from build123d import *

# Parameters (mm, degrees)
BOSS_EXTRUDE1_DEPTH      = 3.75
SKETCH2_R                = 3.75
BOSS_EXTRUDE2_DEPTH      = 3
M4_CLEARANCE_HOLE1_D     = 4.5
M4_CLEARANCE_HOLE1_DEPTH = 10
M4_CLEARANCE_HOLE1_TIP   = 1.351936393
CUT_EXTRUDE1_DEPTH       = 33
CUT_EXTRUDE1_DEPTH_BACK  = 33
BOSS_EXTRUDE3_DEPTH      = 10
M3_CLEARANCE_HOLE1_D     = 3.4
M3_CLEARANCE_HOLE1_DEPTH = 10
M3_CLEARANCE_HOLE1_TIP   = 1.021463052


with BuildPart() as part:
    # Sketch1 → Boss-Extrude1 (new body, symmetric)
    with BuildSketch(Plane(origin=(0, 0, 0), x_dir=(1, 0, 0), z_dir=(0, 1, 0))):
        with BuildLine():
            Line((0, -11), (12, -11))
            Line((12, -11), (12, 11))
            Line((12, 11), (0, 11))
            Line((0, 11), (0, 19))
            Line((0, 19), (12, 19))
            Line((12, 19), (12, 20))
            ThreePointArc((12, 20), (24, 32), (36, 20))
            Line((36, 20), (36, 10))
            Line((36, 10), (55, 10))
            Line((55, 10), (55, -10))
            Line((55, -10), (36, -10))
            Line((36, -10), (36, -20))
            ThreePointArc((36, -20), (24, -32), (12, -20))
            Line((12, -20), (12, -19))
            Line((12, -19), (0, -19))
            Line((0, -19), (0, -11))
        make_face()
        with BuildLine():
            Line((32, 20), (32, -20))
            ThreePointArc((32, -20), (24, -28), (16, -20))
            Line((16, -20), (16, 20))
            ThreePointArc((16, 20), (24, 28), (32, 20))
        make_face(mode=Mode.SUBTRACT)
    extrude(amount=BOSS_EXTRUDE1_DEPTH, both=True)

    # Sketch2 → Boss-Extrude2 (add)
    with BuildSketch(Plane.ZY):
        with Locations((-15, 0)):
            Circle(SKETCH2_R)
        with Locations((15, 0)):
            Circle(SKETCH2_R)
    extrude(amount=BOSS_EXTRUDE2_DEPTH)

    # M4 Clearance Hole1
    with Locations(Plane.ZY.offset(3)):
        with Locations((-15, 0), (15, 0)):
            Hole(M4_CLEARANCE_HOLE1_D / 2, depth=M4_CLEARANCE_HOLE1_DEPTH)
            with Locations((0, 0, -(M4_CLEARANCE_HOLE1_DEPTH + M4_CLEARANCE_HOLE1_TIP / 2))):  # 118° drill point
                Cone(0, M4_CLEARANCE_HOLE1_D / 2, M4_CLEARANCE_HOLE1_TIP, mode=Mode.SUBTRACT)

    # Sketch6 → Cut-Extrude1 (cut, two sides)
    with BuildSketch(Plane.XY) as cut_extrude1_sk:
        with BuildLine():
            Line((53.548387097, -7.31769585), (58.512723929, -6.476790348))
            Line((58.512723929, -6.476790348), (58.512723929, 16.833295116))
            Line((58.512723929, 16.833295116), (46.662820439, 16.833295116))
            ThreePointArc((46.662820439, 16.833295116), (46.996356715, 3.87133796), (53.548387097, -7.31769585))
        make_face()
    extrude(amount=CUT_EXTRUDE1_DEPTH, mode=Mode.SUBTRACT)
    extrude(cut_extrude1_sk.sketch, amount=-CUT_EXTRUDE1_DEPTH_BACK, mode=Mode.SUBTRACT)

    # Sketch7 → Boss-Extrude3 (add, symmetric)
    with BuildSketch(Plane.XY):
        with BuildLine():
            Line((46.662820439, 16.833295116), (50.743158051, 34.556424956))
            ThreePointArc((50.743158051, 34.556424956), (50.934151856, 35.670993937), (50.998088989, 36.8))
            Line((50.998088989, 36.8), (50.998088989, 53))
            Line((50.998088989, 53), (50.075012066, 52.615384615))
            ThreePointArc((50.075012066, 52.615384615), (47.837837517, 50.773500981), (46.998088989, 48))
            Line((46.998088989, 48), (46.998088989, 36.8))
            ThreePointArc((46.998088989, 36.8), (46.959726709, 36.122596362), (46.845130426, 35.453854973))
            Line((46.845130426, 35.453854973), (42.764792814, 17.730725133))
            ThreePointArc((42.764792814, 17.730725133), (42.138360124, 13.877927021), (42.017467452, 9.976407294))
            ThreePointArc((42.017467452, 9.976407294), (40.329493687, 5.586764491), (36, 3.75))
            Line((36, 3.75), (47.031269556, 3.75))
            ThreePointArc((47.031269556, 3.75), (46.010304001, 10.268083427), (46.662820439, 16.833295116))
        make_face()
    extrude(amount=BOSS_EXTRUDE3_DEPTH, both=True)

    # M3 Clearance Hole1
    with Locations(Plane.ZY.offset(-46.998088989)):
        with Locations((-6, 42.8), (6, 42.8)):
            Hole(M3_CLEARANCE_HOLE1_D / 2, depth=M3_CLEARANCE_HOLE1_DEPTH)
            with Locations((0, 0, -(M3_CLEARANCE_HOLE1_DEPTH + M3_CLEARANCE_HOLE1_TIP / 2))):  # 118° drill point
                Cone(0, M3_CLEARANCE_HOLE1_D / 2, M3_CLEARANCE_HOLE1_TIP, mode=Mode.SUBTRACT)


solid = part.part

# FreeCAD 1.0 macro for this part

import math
import FreeCAD as App
import Part
import Sketcher

V = App.Vector

doc = App.newDocument("Part")
params = doc.addObject("Spreadsheet::Sheet", "Params")
for row, (alias, value) in enumerate([
    ("sketch1_radius", "12 mm"),
    ("sketch1_radius2", "8 mm"),
    ("sketch1_width", "12 mm"),
    ("sketch1_width2", "19 mm"),
    ("sketch1_height", "8 mm"),
    ("pad1_length", "7.5 mm"),
    ("sketch2_diameter", "7.5 mm"),
    ("pad2_length", "3 mm"),
    ("sketch3_diameter", "4.5 mm"),
    ("hole_diameter", "4.5 mm"),
    ("hole_depth", "10 mm"),
    ("sketch4_radius", "26 mm"),
    ("sketch5_radius", "10 mm"),
    ("sketch5_radius2", "5 mm"),
    ("sketch5_radius3", "6 mm"),
    ("sketch5_radius4", "30 mm"),
    ("sketch5_length", "1 mm"),
    ("pad3_length", "20 mm"),
    ("sketch6_diameter", "3.4 mm"),
    ("hole2_diameter", "3.4 mm"),
    ("hole2_depth", "10 mm"),
], start=1):
    params.set(f"A{row}", alias)
    params.set(f"B{row}", "=" + value)
    params.setAlias(f"B{row}", alias)

body = doc.addObject("PartDesign::Body", "Body")

# Sketch on XZ plane
sketch1 = body.newObject("Sketcher::SketchObject", "Sketch")
sketch1.AttachmentSupport = (doc.getObject("XZ_Plane"), [""])
sketch1.MapMode = "FlatFace"
sketch1.addGeometry(Part.LineSegment(V(12, 11, 0), V(0, 11, 0)), False)
sketch1.addGeometry(Part.LineSegment(V(0, 11, 0), V(0, 19, 0)), False)
sketch1.addGeometry(Part.LineSegment(V(0, 19, 0), V(12, 19, 0)), False)
sketch1.addGeometry(Part.LineSegment(V(12, 19, 0), V(12, 20, 0)), False)
sketch1.addGeometry(Part.ArcOfCircle(Part.Circle(V(24, 20, 0), V(0, 0, 1), 12), math.radians(0), math.radians(180)), False)
sketch1.addGeometry(Part.LineSegment(V(36, 20, 0), V(36, 10, 0)), False)
sketch1.addGeometry(Part.LineSegment(V(36, 10, 0), V(55, 10, 0)), False)
sketch1.addGeometry(Part.LineSegment(V(55, 10, 0), V(55, -10, 0)), False)
sketch1.addGeometry(Part.LineSegment(V(55, -10, 0), V(36, -10, 0)), False)
sketch1.addGeometry(Part.LineSegment(V(36, -10, 0), V(36, -20, 0)), False)
sketch1.addGeometry(Part.ArcOfCircle(Part.Circle(V(24, -20, 0), V(0, 0, 1), 12), math.radians(180), math.radians(360)), False)
sketch1.addGeometry(Part.LineSegment(V(12, -20, 0), V(12, -19, 0)), False)
sketch1.addGeometry(Part.LineSegment(V(12, -19, 0), V(0, -19, 0)), False)
sketch1.addGeometry(Part.LineSegment(V(0, -19, 0), V(0, -11, 0)), False)
sketch1.addGeometry(Part.LineSegment(V(0, -11, 0), V(12, -11, 0)), False)
sketch1.addGeometry(Part.LineSegment(V(12, -11, 0), V(12, 11, 0)), False)
sketch1.addGeometry(Part.LineSegment(V(32, -20, 0), V(32, 20, 0)), False)
sketch1.addGeometry(Part.ArcOfCircle(Part.Circle(V(24, 20, 0), V(0, 0, 1), 8), math.radians(0), math.radians(180)), False)
sketch1.addGeometry(Part.LineSegment(V(16, 20, 0), V(16, -20, 0)), False)
sketch1.addGeometry(Part.ArcOfCircle(Part.Circle(V(24, -20, 0), V(0, 0, 1), 8), math.radians(180), math.radians(360)), False)
sketch1.addConstraint(Sketcher.Constraint("Coincident", 0, 2, 1, 1))
sketch1.addConstraint(Sketcher.Constraint("Coincident", 1, 2, 2, 1))
sketch1.addConstraint(Sketcher.Constraint("Coincident", 2, 2, 3, 1))
sketch1.addConstraint(Sketcher.Constraint("Tangent", 3, 2, 4, 2))
sketch1.addConstraint(Sketcher.Constraint("Tangent", 4, 1, 5, 1))
sketch1.addConstraint(Sketcher.Constraint("Coincident", 5, 2, 6, 1))
sketch1.addConstraint(Sketcher.Constraint("Coincident", 6, 2, 7, 1))
sketch1.addConstraint(Sketcher.Constraint("Coincident", 7, 2, 8, 1))
sketch1.addConstraint(Sketcher.Constraint("Coincident", 8, 2, 9, 1))
sketch1.addConstraint(Sketcher.Constraint("Tangent", 9, 2, 10, 2))
sketch1.addConstraint(Sketcher.Constraint("Tangent", 10, 1, 11, 1))
sketch1.addConstraint(Sketcher.Constraint("Coincident", 11, 2, 12, 1))
sketch1.addConstraint(Sketcher.Constraint("Coincident", 12, 2, 13, 1))
sketch1.addConstraint(Sketcher.Constraint("Coincident", 13, 2, 14, 1))
sketch1.addConstraint(Sketcher.Constraint("Coincident", 14, 2, 15, 1))
sketch1.addConstraint(Sketcher.Constraint("Coincident", 15, 2, 0, 1))
sketch1.addConstraint(Sketcher.Constraint("Tangent", 16, 2, 17, 1))
sketch1.addConstraint(Sketcher.Constraint("Tangent", 17, 2, 18, 1))
sketch1.addConstraint(Sketcher.Constraint("Tangent", 18, 2, 19, 1))
sketch1.addConstraint(Sketcher.Constraint("Tangent", 19, 2, 16, 1))
sketch1.addConstraint(Sketcher.Constraint("Horizontal", 0))
sketch1.addConstraint(Sketcher.Constraint("Vertical", 1))
sketch1.addConstraint(Sketcher.Constraint("Horizontal", 2))
sketch1.addConstraint(Sketcher.Constraint("Vertical", 3))
sketch1.addConstraint(Sketcher.Constraint("Vertical", 5))
sketch1.addConstraint(Sketcher.Constraint("Horizontal", 6))
sketch1.addConstraint(Sketcher.Constraint("Vertical", 7))
sketch1.addConstraint(Sketcher.Constraint("Horizontal", 8))
sketch1.addConstraint(Sketcher.Constraint("Vertical", 9))
sketch1.addConstraint(Sketcher.Constraint("Vertical", 11))
sketch1.addConstraint(Sketcher.Constraint("Horizontal", 12))
sketch1.addConstraint(Sketcher.Constraint("Vertical", 13))
sketch1.addConstraint(Sketcher.Constraint("Horizontal", 14))
sketch1.addConstraint(Sketcher.Constraint("Vertical", 15))
sketch1.addConstraint(Sketcher.Constraint("Vertical", 16))
sketch1.addConstraint(Sketcher.Constraint("Vertical", 18))
sketch1.addConstraint(Sketcher.Constraint("Coincident", 17, 3, 4, 3))
sketch1.addConstraint(Sketcher.Constraint("Coincident", 19, 3, 10, 3))
sketch1.addConstraint(Sketcher.Constraint("Equal", 4, 10))
sketch1.addConstraint(Sketcher.Constraint("Symmetric", 1, 2, 12, 2, -1, 1))
sketch1.addConstraint(Sketcher.Constraint("Symmetric", 0, 2, 13, 2, -1))
sketch1.addConstraint(Sketcher.Constraint("Vertical", 11, 2, 14, 2))
sketch1.addConstraint(Sketcher.Constraint("Equal", 5, 9))
sketch1.addConstraint(Sketcher.Constraint("Equal", 3, 11))
sketch1.addConstraint(Sketcher.Constraint("Radius", 4, 12.0))
sketch1.addConstraint(Sketcher.Constraint("Radius", 17, 8.0))
sketch1.addConstraint(Sketcher.Constraint("DistanceX", 0, 2, 0, 1, 12.0))
sketch1.addConstraint(Sketcher.Constraint("DistanceX", 6, 1, 6, 2, 19.0))
sketch1.addConstraint(Sketcher.Constraint("DistanceY", 1, 1, 1, 2, 8.0))
sketch1.addConstraint(Sketcher.Constraint("DistanceY", 3, 1, 3, 2, 1.0))
sketch1.addConstraint(Sketcher.Constraint("DistanceY", 5, 2, 5, 1, 10.0))
sketch1.addConstraint(Sketcher.Constraint("DistanceY", 7, 2, 7, 1, 20.0))
sketch1.setExpression("Constraints[44]", "Params.sketch1_radius")
sketch1.setExpression("Constraints[45]", "Params.sketch1_radius2")
sketch1.setExpression("Constraints[46]", "Params.sketch1_width")
sketch1.setExpression("Constraints[47]", "Params.sketch1_width2")
sketch1.setExpression("Constraints[48]", "Params.sketch1_height")
pad1 = body.newObject("PartDesign::Pad", "Pad")
pad1.Profile = sketch1
pad1.setExpression("Length", "Params.pad1_length")
pad1.Midplane = True

# Sketch on YZ plane
sketch2 = body.newObject("Sketcher::SketchObject", "Sketch001")
sketch2.AttachmentSupport = (doc.getObject("YZ_Plane"), [""])
sketch2.MapMode = "FlatFace"
sketch2.addGeometry(Part.Circle(V(0, -15, 0), V(0, 0, 1), 3.75), False)
sketch2.addGeometry(Part.Circle(V(0, 15, 0), V(0, 0, 1), 3.75), False)
sketch2.addConstraint(Sketcher.Constraint("Equal", 0, 1))
sketch2.addConstraint(Sketcher.Constraint("Symmetric", 0, 3, 1, 3, -1, 1))
sketch2.addConstraint(Sketcher.Constraint("PointOnObject", 0, 3, -2))
sketch2.addConstraint(Sketcher.Constraint("Diameter", 0, 7.5))
sketch2.addConstraint(Sketcher.Constraint("DistanceY", 0, 3, -1, 1, 15.0))
sketch2.setExpression("Constraints[3]", "Params.sketch2_diameter")
pad2 = body.newObject("PartDesign::Pad", "Pad001")
pad2.Profile = sketch2
pad2.setExpression("Length", "Params.pad2_length")
pad2.Reversed = True

# Sketch on YZ plane
sketch3 = body.newObject("Sketcher::SketchObject", "Sketch002")
sketch3.AttachmentSupport = (doc.getObject("YZ_Plane"), [""])
sketch3.MapMode = "FlatFace"
sketch3.AttachmentOffset = App.Placement(V(0, 0, -3), App.Rotation())
sketch3.addGeometry(Part.Circle(V(0, -15, 0), V(0, 0, 1), 2.25), False)
sketch3.addGeometry(Part.Circle(V(0, 15, 0), V(0, 0, 1), 2.25), False)
sketch3.addConstraint(Sketcher.Constraint("Equal", 0, 1))
sketch3.addConstraint(Sketcher.Constraint("Symmetric", 0, 3, 1, 3, -1, 1))
sketch3.addConstraint(Sketcher.Constraint("PointOnObject", 0, 3, -2))
sketch3.addConstraint(Sketcher.Constraint("Diameter", 0, 4.5))
sketch3.addConstraint(Sketcher.Constraint("DistanceY", 0, 3, -1, 1, 15.0))
sketch3.setExpression("Constraints[3]", "Params.sketch3_diameter")
doc.recompute()
hole = body.newObject("PartDesign::Hole", "Hole")
hole.Profile = sketch3
hole.ThreadType = "None"
hole.setExpression("Diameter", "Params.hole_diameter")
hole.DepthType = "Dimension"
hole.setExpression("Depth", "Params.hole_depth")
hole.DrillPoint = "Angled"
hole.DrillPointAngle = 118
hole.Reversed = True

# Sketch on XY plane
sketch4 = body.newObject("Sketcher::SketchObject", "Sketch003")
sketch4.AttachmentSupport = (doc.getObject("XY_Plane"), [""])
sketch4.MapMode = "FlatFace"
sketch4.addGeometry(Part.LineSegment(V(53.548387, -7.317696, 0), V(58.512724, -6.47679, 0)), False)
sketch4.addGeometry(Part.LineSegment(V(58.512724, -6.47679, 0), V(58.512724, 16.833295, 0)), False)
sketch4.addGeometry(Part.LineSegment(V(58.512724, 16.833295, 0), V(46.66282, 16.833295, 0)), False)
sketch4.addGeometry(Part.ArcOfCircle(Part.Circle(V(72, 11, 0), V(0, 0, 1), 26), math.radians(167.0349), math.radians(224.791325)), False)
sketch4.addConstraint(Sketcher.Constraint("Coincident", 0, 2, 1, 1))
sketch4.addConstraint(Sketcher.Constraint("Coincident", 1, 2, 2, 1))
sketch4.addConstraint(Sketcher.Constraint("Coincident", 2, 2, 3, 1))
sketch4.addConstraint(Sketcher.Constraint("Coincident", 3, 2, 0, 1))
sketch4.addConstraint(Sketcher.Constraint("Vertical", 1))
sketch4.addConstraint(Sketcher.Constraint("Horizontal", 2))
sketch4.addConstraint(Sketcher.Constraint("Radius", 3, 26.0))
sketch4.addConstraint(Sketcher.Constraint("DistanceX", -1, 1, 3, 3, 72.0))
sketch4.addConstraint(Sketcher.Constraint("DistanceY", -1, 1, 3, 3, 11.0))
sketch4.addConstraint(Sketcher.Constraint("DistanceX", 2, 2, 2, 1, 11.849903))
sketch4.addConstraint(Sketcher.Constraint("DistanceY", 1, 1, 1, 2, 23.310085))
sketch4.addConstraint(Sketcher.Constraint("DistanceY", 0, 2, -1, 1, 6.47679))
sketch4.addConstraint(Sketcher.Constraint("DistanceY", 3, 2, 1, 2, 24.150991))
sketch4.setExpression("Constraints[6]", "Params.sketch4_radius")
pocket1 = body.newObject("PartDesign::Pocket", "Pocket")
pocket1.Profile = sketch4
pocket1.Type = "ThroughAll"
pocket1.Midplane = True

# Sketch on XY plane
sketch5 = body.newObject("Sketcher::SketchObject", "Sketch004")
sketch5.AttachmentSupport = (doc.getObject("XY_Plane"), [""])
sketch5.MapMode = "FlatFace"
sketch5.addGeometry(Part.LineSegment(V(46.66282, 16.833295, 0), V(50.743158, 34.556425, 0)), False)
sketch5.addGeometry(Part.ArcOfCircle(Part.Circle(V(40.998089, 36.8, 0), V(0, 0, 1), 10), math.radians(-12.9651), math.radians(0)), False)
sketch5.addGeometry(Part.LineSegment(V(50.998089, 36.8, 0), V(50.998089, 53, 0)), False)
sketch5.addGeometry(Part.LineSegment(V(50.998089, 53, 0), V(50.075012, 52.615385, 0)), False)
sketch5.addGeometry(Part.ArcOfCircle(Part.Circle(V(51.998089, 48, 0), V(0, 0, 1), 5), math.radians(112.619865), math.radians(180)), False)
sketch5.addGeometry(Part.LineSegment(V(46.998089, 48, 0), V(46.998089, 36.8, 0)), False)
sketch5.addGeometry(Part.ArcOfCircle(Part.Circle(V(40.998089, 36.8, 0), V(0, 0, 1), 6), math.radians(-12.9651), math.radians(0)), False)
sketch5.addGeometry(Part.LineSegment(V(46.84513, 35.453855, 0), V(42.764793, 17.730725, 0)), False)
sketch5.addGeometry(Part.ArcOfCircle(Part.Circle(V(72, 11, 0), V(0, 0, 1), 30), math.radians(167.0349), math.radians(181.955298)), False)
sketch5.addGeometry(Part.ArcOfCircle(Part.Circle(V(36, 9.770973, 0), V(0, 0, 1), 6.020973), math.radians(-90), math.radians(1.955298)), False)
sketch5.addGeometry(Part.LineSegment(V(36, 3.75, 0), V(47.03127, 3.75, 0)), False)
sketch5.addGeometry(Part.ArcOfCircle(Part.Circle(V(72, 11, 0), V(0, 0, 1), 26), math.radians(167.0349), math.radians(196.191352)), False)
sketch5.addConstraint(Sketcher.Constraint("Tangent", 0, 2, 1, 1))
sketch5.addConstraint(Sketcher.Constraint("Tangent", 1, 2, 2, 1))
sketch5.addConstraint(Sketcher.Constraint("Coincident", 2, 2, 3, 1))
sketch5.addConstraint(Sketcher.Constraint("Tangent", 3, 2, 4, 1))
sketch5.addConstraint(Sketcher.Constraint("Tangent", 4, 2, 5, 1))
sketch5.addConstraint(Sketcher.Constraint("Tangent", 5, 2, 6, 2))
sketch5.addConstraint(Sketcher.Constraint("Tangent", 6, 1, 7, 1))
sketch5.addConstraint(Sketcher.Constraint("Tangent", 7, 2, 8, 1))
sketch5.addConstraint(Sketcher.Constraint("Tangent", 8, 2, 9, 2))
sketch5.addConstraint(Sketcher.Constraint("Tangent", 9, 1, 10, 1))
sketch5.addConstraint(Sketcher.Constraint("Coincident", 10, 2, 11, 2))
sketch5.addConstraint(Sketcher.Constraint("Tangent", 11, 1, 0, 1))
sketch5.addConstraint(Sketcher.Constraint("Vertical", 2))
sketch5.addConstraint(Sketcher.Constraint("Vertical", 5))
sketch5.addConstraint(Sketcher.Constraint("Horizontal", 10))
sketch5.addConstraint(Sketcher.Constraint("Coincident", 6, 3, 1, 3))
sketch5.addConstraint(Sketcher.Constraint("Coincident", 11, 3, 8, 3))
sketch5.addConstraint(Sketcher.Constraint("Parallel", 0, 7))
sketch5.addConstraint(Sketcher.Constraint("Radius", 1, 10.0))
sketch5.addConstraint(Sketcher.Constraint("Radius", 4, 5.0))
sketch5.addConstraint(Sketcher.Constraint("Radius", 6, 6.0))
sketch5.addConstraint(Sketcher.Constraint("Radius", 8, 30.0))
sketch5.addConstraint(Sketcher.Constraint("Distance", 3, 1.0))
sketch5.addConstraint(Sketcher.Constraint("DistanceY", 2, 1, 2, 2, 16.2))
sketch5.addConstraint(Sketcher.Constraint("DistanceY", -1, 1, 4, 3, 48.0))
sketch5.addConstraint(Sketcher.Constraint("DistanceX", -1, 1, 8, 3, 72.0))
sketch5.addConstraint(Sketcher.Constraint("DistanceY", -1, 1, 8, 3, 11.0))
sketch5.addConstraint(Sketcher.Constraint("DistanceX", -1, 1, 9, 3, 36.0))
sketch5.addConstraint(Sketcher.Constraint("DistanceY", -1, 1, 9, 1, 3.75))
sketch5.addConstraint(Sketcher.Constraint("DistanceY", 7, 2, 0, 2, 16.8257))
sketch5.setExpression("Constraints[18]", "Params.sketch5_radius")
sketch5.setExpression("Constraints[19]", "Params.sketch5_radius2")
sketch5.setExpression("Constraints[20]", "Params.sketch5_radius3")
sketch5.setExpression("Constraints[21]", "Params.sketch5_radius4")
sketch5.setExpression("Constraints[22]", "Params.sketch5_length")
pad3 = body.newObject("PartDesign::Pad", "Pad002")
pad3.Profile = sketch5
pad3.setExpression("Length", "Params.pad3_length")
pad3.Midplane = True

# Sketch on YZ plane
sketch6 = body.newObject("Sketcher::SketchObject", "Sketch005")
sketch6.AttachmentSupport = (doc.getObject("YZ_Plane"), [""])
sketch6.MapMode = "FlatFace"
sketch6.AttachmentOffset = App.Placement(V(0, 0, 46.998089), App.Rotation())
sketch6.addGeometry(Part.Circle(V(42.8, -6, 0), V(0, 0, 1), 1.7), False)
sketch6.addGeometry(Part.Circle(V(42.8, 6, 0), V(0, 0, 1), 1.7), False)
sketch6.addConstraint(Sketcher.Constraint("Equal", 0, 1))
sketch6.addConstraint(Sketcher.Constraint("Symmetric", 0, 3, 1, 3, -1))
sketch6.addConstraint(Sketcher.Constraint("Diameter", 0, 3.4))
sketch6.addConstraint(Sketcher.Constraint("DistanceY", 0, 3, -1, 1, 6.0))
sketch6.addConstraint(Sketcher.Constraint("DistanceX", -1, 1, 0, 3, 42.8))
sketch6.setExpression("Constraints[2]", "Params.sketch6_diameter")
doc.recompute()
hole2 = body.newObject("PartDesign::Hole", "Hole001")
hole2.Profile = sketch6
hole2.ThreadType = "None"
hole2.setExpression("Diameter", "Params.hole2_diameter")
hole2.DepthType = "Dimension"
hole2.setExpression("Depth", "Params.hole2_depth")
hole2.DrillPoint = "Angled"
hole2.DrillPointAngle = 118
hole2.Reversed = True

doc.recompute()
